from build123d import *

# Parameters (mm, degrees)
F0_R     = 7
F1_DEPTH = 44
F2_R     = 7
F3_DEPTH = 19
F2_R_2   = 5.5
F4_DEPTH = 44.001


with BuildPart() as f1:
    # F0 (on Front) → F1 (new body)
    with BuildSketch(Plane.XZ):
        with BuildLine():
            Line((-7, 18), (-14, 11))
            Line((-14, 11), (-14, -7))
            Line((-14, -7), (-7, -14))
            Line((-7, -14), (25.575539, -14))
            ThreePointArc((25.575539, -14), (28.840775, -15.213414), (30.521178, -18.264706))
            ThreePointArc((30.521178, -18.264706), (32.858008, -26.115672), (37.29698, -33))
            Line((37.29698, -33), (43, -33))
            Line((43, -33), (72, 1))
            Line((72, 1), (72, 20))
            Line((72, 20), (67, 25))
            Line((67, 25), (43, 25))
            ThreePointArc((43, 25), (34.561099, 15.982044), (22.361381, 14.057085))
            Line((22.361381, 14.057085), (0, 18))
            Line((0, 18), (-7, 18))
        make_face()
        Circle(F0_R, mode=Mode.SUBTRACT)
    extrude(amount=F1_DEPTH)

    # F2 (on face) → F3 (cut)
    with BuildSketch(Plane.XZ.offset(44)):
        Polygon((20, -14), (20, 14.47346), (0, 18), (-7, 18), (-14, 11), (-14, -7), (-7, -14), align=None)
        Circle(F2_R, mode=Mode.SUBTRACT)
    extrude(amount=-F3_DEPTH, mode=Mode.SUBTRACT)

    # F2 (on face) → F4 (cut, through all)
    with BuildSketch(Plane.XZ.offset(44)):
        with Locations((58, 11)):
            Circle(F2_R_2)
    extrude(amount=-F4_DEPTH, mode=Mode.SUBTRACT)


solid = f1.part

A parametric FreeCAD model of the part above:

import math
import FreeCAD as App
import Part
import Sketcher
Q = App.Units.Quantity

doc = App.newDocument("Part")
body = doc.addObject("PartDesign::Body", "Body")

# Sketch on XZ plane
sketch1 = body.newObject("Sketcher::SketchObject", "Sketch")
sketch1.AttachmentSupport = (doc.getObject("XZ_Plane"), [""])
sketch1.MapMode = "FlatFace"
sketch1.addGeometry(Part.LineSegment(App.Vector(-7, 18, 0), App.Vector(-14, 11, 0)), False)
sketch1.addGeometry(Part.LineSegment(App.Vector(-14, 11, 0), App.Vector(-14, -7, 0)), False)
sketch1.addGeometry(Part.LineSegment(App.Vector(-14, -7, 0), App.Vector(-7, -14, 0)), False)
sketch1.addGeometry(Part.LineSegment(App.Vector(-7, -14, 0), App.Vector(26, -14, 0)), False)
sketch1.addGeometry(Part.ArcOfCircle(Part.Circle(App.Vector(26, -19, 0), App.Vector(0, 0, 1), 5), math.radians(8), math.radians(90)), False)
sketch1.addGeometry(Part.ArcOfCircle(Part.Circle(App.Vector(59, -14, 0), App.Vector(0, 0, 1), 29), math.radians(-172), math.radians(-139)), False)
sketch1.addGeometry(Part.LineSegment(App.Vector(37, -33, 0), App.Vector(43, -33, 0)), False)
sketch1.addGeometry(Part.LineSegment(App.Vector(43, -33, 0), App.Vector(72, 1, 0)), False)
sketch1.addGeometry(Part.LineSegment(App.Vector(72, 1, 0), App.Vector(72, 20, 0)), False)
sketch1.addGeometry(Part.LineSegment(App.Vector(72, 20, 0), App.Vector(67, 25, 0)), False)
sketch1.addGeometry(Part.LineSegment(App.Vector(67, 25, 0), App.Vector(43, 25, 0)), False)
sketch1.addGeometry(Part.ArcOfCircle(Part.Circle(App.Vector(26, 33, 0), App.Vector(0, 0, 1), 19), math.radians(-100), math.radians(-24)), False)
sketch1.addGeometry(Part.LineSegment(App.Vector(22, 14, 0), App.Vector(0, 18, 0)), False)
sketch1.addGeometry(Part.LineSegment(App.Vector(0, 18, 0), App.Vector(-7, 18, 0)), False)
sketch1.addGeometry(Part.Circle(App.Vector(0, 0, 0), App.Vector(0, 0, 1), 7), False)
sketch1.addConstraint(Sketcher.Constraint("Coincident", 0, 2, 1, 1))
sketch1.addConstraint(Sketcher.Constraint("Coincident", 1, 2, 2, 1))
sketch1.addConstraint(Sketcher.Constraint("Coincident", 2, 2, 3, 1))
sketch1.addConstraint(Sketcher.Constraint("Tangent", 3, 2, 4, 2))
sketch1.addConstraint(Sketcher.Constraint("Tangent", 4, 1, 5, 1))
sketch1.addConstraint(Sketcher.Constraint("Coincident", 5, 2, 6, 1))
sketch1.addConstraint(Sketcher.Constraint("Coincident", 6, 2, 7, 1))
sketch1.addConstraint(Sketcher.Constraint("Coincident", 7, 2, 8, 1))
sketch1.addConstraint(Sketcher.Constraint("Coincident", 8, 2, 9, 1))
sketch1.addConstraint(Sketcher.Constraint("Coincident", 9, 2, 10, 1))
sketch1.addConstraint(Sketcher.Constraint("Coincident", 10, 2, 11, 2))
sketch1.addConstraint(Sketcher.Constraint("Tangent", 11, 1, 12, 1))
sketch1.addConstraint(Sketcher.Constraint("Coincident", 12, 2, 13, 1))
sketch1.addConstraint(Sketcher.Constraint("Coincident", 13, 2, 0, 1))
sketch1.addConstraint(Sketcher.Constraint("Vertical", 1))
sketch1.addConstraint(Sketcher.Constraint("Horizontal", 3))
sketch1.addConstraint(Sketcher.Constraint("Horizontal", 6))
sketch1.addConstraint(Sketcher.Constraint("Vertical", 8))
sketch1.addConstraint(Sketcher.Constraint("Horizontal", 10))
sketch1.addConstraint(Sketcher.Constraint("Horizontal", 13))
sketch1.addConstraint(Sketcher.Constraint("Coincident", 14, 3, -1, 1))
sketch1.addConstraint(Sketcher.Constraint("PointOnObject", 12, 2, -2))
sketch1.addConstraint(Sketcher.Constraint("Perpendicular", 0, 2))
sketch1.addConstraint(Sketcher.Constraint("Parallel", 2, 9))
sketch1.addConstraint(Sketcher.Constraint("Horizontal", 5, 3, 2, 2))
sketch1.addConstraint(Sketcher.Constraint("Vertical", 6, 2, 10, 2))
sketch1.addConstraint(Sketcher.Constraint("Vertical", 2, 2, 13, 2))
sketch1.addConstraint(Sketcher.Constraint("Equal", 0, 2))
sketch1.addConstraint(Sketcher.Constraint("Diameter", 14, Q("14 mm")))
sketch1.addConstraint(Sketcher.Constraint("Radius", 4, Q("5.000001 mm")))
sketch1.addConstraint(Sketcher.Constraint("Radius", 5, Q("29 mm")))
sketch1.addConstraint(Sketcher.Constraint("Radius", 11, Q("18.999999 mm")))
sketch1.addConstraint(Sketcher.Constraint("DistanceX", 10, 2, 10, 1, Q("24 mm")))
sketch1.addConstraint(Sketcher.Constraint("DistanceX", 13, 2, 13, 1, Q("7 mm")))
sketch1.addConstraint(Sketcher.Constraint("DistanceY", 1, 2, 1, 1, Q("18 mm")))
sketch1.addConstraint(Sketcher.Constraint("DistanceY", 8, 1, 8, 2, Q("19 mm")))
sketch1.addConstraint(Sketcher.Constraint("Angle", 12, Q("169.999999 deg")))
sketch1.addConstraint(Sketcher.Constraint("DistanceY", 4, 3, -1, 1, Q("19.000001 mm")))
sketch1.addConstraint(Sketcher.Constraint("DistanceX", 0, 2, -1, 1, Q("14 mm")))
sketch1.addConstraint(Sketcher.Constraint("DistanceY", 5, 2, -1, 1, Q("33 mm")))
sketch1.addConstraint(Sketcher.Constraint("DistanceX", -1, 1, 6, 2, Q("43 mm")))
sketch1.addConstraint(Sketcher.Constraint("DistanceX", -1, 1, 7, 2, Q("72 mm")))
sketch1.addConstraint(Sketcher.Constraint("DistanceY", -1, 1, 7, 2, Q("1 mm")))
sketch1.addConstraint(Sketcher.Constraint("DistanceX", 3, 1, 3, 2, Q("32.575539 mm")))
pad1 = body.newObject("PartDesign::Pad", "Pad")
pad1.Profile = sketch1
pad1.Length = 44

# Sketch on XZ plane
sketch2 = body.newObject("Sketcher::SketchObject", "Sketch001")
sketch2.AttachmentSupport = (doc.getObject("XZ_Plane"), [""])
sketch2.MapMode = "FlatFace"
sketch2.AttachmentOffset = App.Placement(App.Vector(0, 0, 44), App.Rotation())
sketch2.addGeometry(Part.LineSegment(App.Vector(20, -14, 0), App.Vector(20, 14, 0)), False)
sketch2.addGeometry(Part.LineSegment(App.Vector(20, 14, 0), App.Vector(0, 18, 0)), False)
sketch2.addGeometry(Part.LineSegment(App.Vector(0, 18, 0), App.Vector(-7, 18, 0)), False)
sketch2.addGeometry(Part.LineSegment(App.Vector(-7, 18, 0), App.Vector(-14, 11, 0)), False)
sketch2.addGeometry(Part.LineSegment(App.Vector(-14, 11, 0), App.Vector(-14, -7, 0)), False)
sketch2.addGeometry(Part.LineSegment(App.Vector(-14, -7, 0), App.Vector(-7, -14, 0)), False)
sketch2.addGeometry(Part.LineSegment(App.Vector(-7, -14, 0), App.Vector(20, -14, 0)), False)
sketch2.addGeometry(Part.Circle(App.Vector(0, 0, 0), App.Vector(0, 0, 1), 7), False)
sketch2.addConstraint(Sketcher.Constraint("Coincident", 0, 2, 1, 1))
sketch2.addConstraint(Sketcher.Constraint("Coincident", 1, 2, 2, 1))
sketch2.addConstraint(Sketcher.Constraint("Coincident", 2, 2, 3, 1))
sketch2.addConstraint(Sketcher.Constraint("Coincident", 3, 2, 4, 1))
sketch2.addConstraint(Sketcher.Constraint("Coincident", 4, 2, 5, 1))
sketch2.addConstraint(Sketcher.Constraint("Coincident", 5, 2, 6, 1))
sketch2.addConstraint(Sketcher.Constraint("Coincident", 6, 2, 0, 1))
sketch2.addConstraint(Sketcher.Constraint("Vertical", 0))
sketch2.addConstraint(Sketcher.Constraint("Horizontal", 2))
sketch2.addConstraint(Sketcher.Constraint("Vertical", 4))
sketch2.addConstraint(Sketcher.Constraint("Horizontal", 6))
sketch2.addConstraint(Sketcher.Constraint("Coincident", 7, 3, -1, 1))
sketch2.addConstraint(Sketcher.Constraint("PointOnObject", 1, 2, -2))
sketch2.addConstraint(Sketcher.Constraint("Perpendicular", 3, 5))
sketch2.addConstraint(Sketcher.Constraint("Vertical", 2, 2, 5, 2))
sketch2.addConstraint(Sketcher.Constraint("Equal", 3, 5))
sketch2.addConstraint(Sketcher.Constraint("Diameter", 7, Q("14 mm")))
sketch2.addConstraint(Sketcher.Constraint("DistanceX", 2, 2, 2, 1, Q("7 mm")))
sketch2.addConstraint(Sketcher.Constraint("DistanceX", 6, 1, 6, 2, Q("27 mm")))
sketch2.addConstraint(Sketcher.Constraint("DistanceY", 4, 2, 4, 1, Q("18 mm")))
sketch2.addConstraint(Sketcher.Constraint("Angle", 1, Q("169.999999 deg")))
sketch2.addConstraint(Sketcher.Constraint("DistanceY", -1, 1, 1, 2, Q("18 mm")))
sketch2.addConstraint(Sketcher.Constraint("DistanceX", 3, 2, -1, 1, Q("14 mm")))
pocket1 = body.newObject("PartDesign::Pocket", "Pocket")
pocket1.Profile = sketch2
pocket1.Length = 19

# Sketch on XZ plane
sketch3 = body.newObject("Sketcher::SketchObject", "Sketch002")
sketch3.AttachmentSupport = (doc.getObject("XZ_Plane"), [""])
sketch3.MapMode = "FlatFace"
sketch3.AttachmentOffset = App.Placement(App.Vector(0, 0, 44), App.Rotation())
sketch3.addGeometry(Part.Circle(App.Vector(58, 11, 0), App.Vector(0, 0, 1), 6), False)
sketch3.addConstraint(Sketcher.Constraint("Diameter", 0, Q("11 mm")))
sketch3.addConstraint(Sketcher.Constraint("DistanceX", -1, 1, 0, 3, Q("58 mm")))
sketch3.addConstraint(Sketcher.Constraint("DistanceY", -1, 1, 0, 3, Q("11 mm")))
pocket2 = body.newObject("PartDesign::Pocket", "Pocket001")
pocket2.Profile = sketch3
pocket2.Type = "ThroughAll"

doc.recompute()
